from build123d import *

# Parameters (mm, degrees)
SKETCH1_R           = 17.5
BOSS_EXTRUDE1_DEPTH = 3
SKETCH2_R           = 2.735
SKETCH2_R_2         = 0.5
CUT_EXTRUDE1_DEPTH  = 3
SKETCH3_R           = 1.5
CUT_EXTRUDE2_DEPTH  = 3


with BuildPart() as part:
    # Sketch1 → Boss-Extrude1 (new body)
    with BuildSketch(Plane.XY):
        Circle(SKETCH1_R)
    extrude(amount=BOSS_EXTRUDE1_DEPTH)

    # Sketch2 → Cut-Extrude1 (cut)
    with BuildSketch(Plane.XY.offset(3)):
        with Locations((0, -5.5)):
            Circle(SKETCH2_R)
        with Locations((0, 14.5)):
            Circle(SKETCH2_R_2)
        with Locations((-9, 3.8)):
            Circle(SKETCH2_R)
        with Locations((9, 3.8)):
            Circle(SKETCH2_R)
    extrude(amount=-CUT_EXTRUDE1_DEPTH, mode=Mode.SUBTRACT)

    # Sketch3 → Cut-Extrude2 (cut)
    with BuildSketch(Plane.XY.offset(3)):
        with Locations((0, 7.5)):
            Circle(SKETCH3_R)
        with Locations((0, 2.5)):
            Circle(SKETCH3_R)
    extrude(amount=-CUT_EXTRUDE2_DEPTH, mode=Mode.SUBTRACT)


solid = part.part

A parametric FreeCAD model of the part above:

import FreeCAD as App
import Part
import Sketcher
from FreeCAD import Vector
Q = App.Units.Quantity

doc = App.newDocument("Part")
body = doc.addObject("PartDesign::Body", "Body")

# Sketch on XY plane
sketch1 = body.newObject("Sketcher::SketchObject", "Sketch")
sketch1.AttachmentSupport = (doc.getObject("XY_Plane"), [""])
sketch1.MapMode = "FlatFace"
sketch1.addGeometry(Part.Circle(Vector(0, 0, 0), Vector(0, 0, 1), 18), False)
sketch1.addConstraint([
    Sketcher.Constraint("Coincident", 0, 3, -1, 1),
    Sketcher.Constraint("Diameter", 0, Q("35 mm")),
])
pad1 = body.newObject("PartDesign::Pad", "Pad")
pad1.Profile = sketch1
pad1.Length = 3

# Sketch on XY plane
sketch2 = body.newObject("Sketcher::SketchObject", "Sketch001")
sketch2.AttachmentSupport = (doc.getObject("XY_Plane"), [""])
sketch2.MapMode = "FlatFace"
sketch2.AttachmentOffset = App.Placement(Vector(0, 0, 3), App.Rotation())
sketch2.addGeometry([
    Part.Circle(Vector(0, -5.5, 0), Vector(0, 0, 1), 2.7),
    Part.Circle(Vector(0, 14.5, 0), Vector(0, 0, 1), 0.5),
    Part.Circle(Vector(-9, 3.8, 0), Vector(0, 0, 1), 2.7),
    Part.Circle(Vector(9, 3.8, 0), Vector(0, 0, 1), 2.7),
], False)
sketch2.addConstraint([
    Sketcher.Constraint("Equal", 0, 2),
    Sketcher.Constraint("Equal", 2, 3),
    Sketcher.Constraint("Symmetric", 2, 3, 3, 3, -2),
    Sketcher.Constraint("PointOnObject", 0, 3, -2),
    Sketcher.Constraint("PointOnObject", 1, 3, -2),
    Sketcher.Constraint("Diameter", 1, Q("1 mm")),
    Sketcher.Constraint("Diameter", 0, Q("5.47 mm")),
    Sketcher.Constraint("DistanceX", 2, 3, -1, 1, Q("9 mm")),
    Sketcher.Constraint("DistanceY", 0, 3, 1, 3, Q("20 mm")),
    Sketcher.Constraint("DistanceY", 0, 3, -1, 1, Q("5.5 mm")),
    Sketcher.Constraint("DistanceY", -1, 1, 2, 3, Q("3.8 mm")),
])
pocket1 = body.newObject("PartDesign::Pocket", "Pocket")
pocket1.Profile = sketch2
pocket1.Length = 3

# Sketch on XY plane
sketch3 = body.newObject("Sketcher::SketchObject", "Sketch002")
sketch3.AttachmentSupport = (doc.getObject("XY_Plane"), [""])
sketch3.MapMode = "FlatFace"
sketch3.AttachmentOffset = App.Placement(Vector(0, 0, 3), App.Rotation())
sketch3.addGeometry([
    Part.Circle(Vector(0, 7.5, 0), Vector(0, 0, 1), 1.5),
    Part.Circle(Vector(0, 2.5, 0), Vector(0, 0, 1), 1.5),
], False)
sketch3.addConstraint([
    Sketcher.Constraint("Equal", 0, 1),
    Sketcher.Constraint("PointOnObject", 0, 3, -2),
    Sketcher.Constraint("PointOnObject", 1, 3, -2),
    Sketcher.Constraint("Diameter", 0, Q("3 mm")),
    Sketcher.Constraint("DistanceY", 1, 3, 0, 3, Q("5 mm")),
    Sketcher.Constraint("DistanceY", -1, 1, 0, 3, Q("7.5 mm")),
])
pocket2 = body.newObject("PartDesign::Pocket", "Pocket001")
pocket2.Profile = sketch3
pocket2.Length = 3

doc.recompute()
